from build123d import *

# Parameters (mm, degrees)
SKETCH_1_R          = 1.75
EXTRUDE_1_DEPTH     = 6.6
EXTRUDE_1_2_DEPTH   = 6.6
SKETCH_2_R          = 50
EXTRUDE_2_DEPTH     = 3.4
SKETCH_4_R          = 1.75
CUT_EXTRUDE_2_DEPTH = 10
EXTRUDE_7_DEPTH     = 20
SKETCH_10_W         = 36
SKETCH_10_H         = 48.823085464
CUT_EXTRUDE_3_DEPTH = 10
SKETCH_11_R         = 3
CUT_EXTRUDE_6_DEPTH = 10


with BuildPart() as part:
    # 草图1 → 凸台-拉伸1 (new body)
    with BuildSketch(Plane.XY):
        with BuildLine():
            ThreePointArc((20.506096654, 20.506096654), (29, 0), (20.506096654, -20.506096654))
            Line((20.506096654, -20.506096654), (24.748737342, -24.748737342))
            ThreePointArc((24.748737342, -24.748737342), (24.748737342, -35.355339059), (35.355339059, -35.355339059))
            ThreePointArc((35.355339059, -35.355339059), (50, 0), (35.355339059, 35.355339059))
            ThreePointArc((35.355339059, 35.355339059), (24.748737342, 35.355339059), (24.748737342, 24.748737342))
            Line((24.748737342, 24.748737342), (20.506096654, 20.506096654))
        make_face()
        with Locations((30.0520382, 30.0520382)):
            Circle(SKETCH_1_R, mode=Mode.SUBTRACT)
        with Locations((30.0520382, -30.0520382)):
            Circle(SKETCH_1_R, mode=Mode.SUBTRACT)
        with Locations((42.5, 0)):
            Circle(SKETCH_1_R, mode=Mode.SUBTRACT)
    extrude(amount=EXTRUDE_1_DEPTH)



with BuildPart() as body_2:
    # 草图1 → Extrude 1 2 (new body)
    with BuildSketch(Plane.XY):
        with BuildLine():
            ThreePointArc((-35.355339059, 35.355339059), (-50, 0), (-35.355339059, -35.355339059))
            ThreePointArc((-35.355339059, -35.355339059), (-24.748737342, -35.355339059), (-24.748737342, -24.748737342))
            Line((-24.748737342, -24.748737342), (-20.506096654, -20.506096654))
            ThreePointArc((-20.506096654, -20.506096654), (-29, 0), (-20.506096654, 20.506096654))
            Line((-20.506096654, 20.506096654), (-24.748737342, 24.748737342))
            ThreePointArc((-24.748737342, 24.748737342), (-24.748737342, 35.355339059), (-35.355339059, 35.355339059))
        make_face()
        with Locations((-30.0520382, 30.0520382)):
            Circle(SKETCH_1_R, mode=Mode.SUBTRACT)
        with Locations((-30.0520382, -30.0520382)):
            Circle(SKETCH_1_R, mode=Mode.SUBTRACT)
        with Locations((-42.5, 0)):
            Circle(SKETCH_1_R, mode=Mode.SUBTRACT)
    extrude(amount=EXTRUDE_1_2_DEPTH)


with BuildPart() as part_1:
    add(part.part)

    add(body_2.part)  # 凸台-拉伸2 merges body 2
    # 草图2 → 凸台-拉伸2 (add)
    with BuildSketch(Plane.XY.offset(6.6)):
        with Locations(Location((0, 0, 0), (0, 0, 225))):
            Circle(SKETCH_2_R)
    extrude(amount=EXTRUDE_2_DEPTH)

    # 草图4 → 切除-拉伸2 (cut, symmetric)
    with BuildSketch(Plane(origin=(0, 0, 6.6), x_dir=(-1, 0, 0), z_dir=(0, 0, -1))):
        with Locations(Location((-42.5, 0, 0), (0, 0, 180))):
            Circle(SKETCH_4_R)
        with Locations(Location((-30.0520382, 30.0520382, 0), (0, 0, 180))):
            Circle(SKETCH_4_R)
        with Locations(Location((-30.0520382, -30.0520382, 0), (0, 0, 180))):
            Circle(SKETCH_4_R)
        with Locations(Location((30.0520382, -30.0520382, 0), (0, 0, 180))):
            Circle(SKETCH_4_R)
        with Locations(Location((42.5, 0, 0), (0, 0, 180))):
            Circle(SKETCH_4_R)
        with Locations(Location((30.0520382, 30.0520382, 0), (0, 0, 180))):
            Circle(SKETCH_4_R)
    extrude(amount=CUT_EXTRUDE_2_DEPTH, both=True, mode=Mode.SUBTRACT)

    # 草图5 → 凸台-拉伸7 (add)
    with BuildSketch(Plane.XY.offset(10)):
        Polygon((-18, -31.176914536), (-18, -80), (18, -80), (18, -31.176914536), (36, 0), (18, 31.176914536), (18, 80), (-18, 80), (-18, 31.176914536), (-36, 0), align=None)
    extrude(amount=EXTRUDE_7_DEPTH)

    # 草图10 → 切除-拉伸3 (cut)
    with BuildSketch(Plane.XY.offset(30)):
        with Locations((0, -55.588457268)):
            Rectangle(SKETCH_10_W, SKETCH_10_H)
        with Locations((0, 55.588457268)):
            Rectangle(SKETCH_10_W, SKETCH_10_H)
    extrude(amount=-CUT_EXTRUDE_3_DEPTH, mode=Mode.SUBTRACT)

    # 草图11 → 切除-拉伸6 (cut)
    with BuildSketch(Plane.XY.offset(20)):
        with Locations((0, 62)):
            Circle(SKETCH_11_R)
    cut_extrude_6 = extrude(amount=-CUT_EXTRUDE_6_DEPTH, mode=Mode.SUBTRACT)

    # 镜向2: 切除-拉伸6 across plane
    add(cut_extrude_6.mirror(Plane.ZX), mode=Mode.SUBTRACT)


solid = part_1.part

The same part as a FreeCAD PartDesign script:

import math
import FreeCAD as App
import Part
import Sketcher

V = App.Vector
Q = App.Units.Quantity

doc = App.newDocument("Part")
body = doc.addObject("PartDesign::Body", "Body")

sketch1 = body.newObject("Sketcher::SketchObject", "Sketch")
sketch1.AttachmentSupport = (doc.getObject("XY_Plane"), [""])
sketch1.MapMode = "FlatFace"
sketch1.addGeometry(Part.ArcOfCircle(Part.Circle(V(0, 0, 0), V(0, 0, 1), 29), math.radians(-45), math.radians(45)), False)
sketch1.addGeometry(Part.LineSegment(V(20.5, -20.5, 0), V(24.7, -24.7, 0)), False)
sketch1.addGeometry(Part.ArcOfCircle(Part.Circle(V(30.1, -30.1, 0), V(0, 0, 1), 7.5), math.radians(135), math.radians(315)), False)
sketch1.addGeometry(Part.ArcOfCircle(Part.Circle(V(0, 0, 0), V(0, 0, 1), 50), math.radians(-45), math.radians(45)), False)
sketch1.addGeometry(Part.ArcOfCircle(Part.Circle(V(30.1, 30.1, 0), V(0, 0, 1), 7.5), math.radians(45), math.radians(225)), False)
sketch1.addGeometry(Part.LineSegment(V(24.7, 24.7, 0), V(20.5, 20.5, 0)), False)
sketch1.addGeometry(Part.Circle(V(30.1, -30.1, 0), V(0, 0, 1), 1.8), False)
sketch1.addGeometry(Part.Circle(V(42.5, 0, 0), V(0, 0, 1), 1.8), False)
sketch1.addGeometry(Part.Circle(V(30.1, 30.1, 0), V(0, 0, 1), 1.8), False)
sketch1.addConstraint(Sketcher.Constraint("Coincident", 0, 1, 1, 1))
sketch1.addConstraint(Sketcher.Constraint("Coincident", 1, 2, 2, 1))
sketch1.addConstraint(Sketcher.Constraint("Tangent", 2, 2, 3, 1))
sketch1.addConstraint(Sketcher.Constraint("Tangent", 3, 2, 4, 1))
sketch1.addConstraint(Sketcher.Constraint("Coincident", 4, 2, 5, 1))
sketch1.addConstraint(Sketcher.Constraint("Coincident", 5, 2, 0, 2))
sketch1.addConstraint(Sketcher.Constraint("Coincident", 0, 3, -1, 1))
sketch1.addConstraint(Sketcher.Constraint("Coincident", 3, 3, -1, 1))
sketch1.addConstraint(Sketcher.Constraint("Coincident", 6, 3, 2, 3))
sketch1.addConstraint(Sketcher.Constraint("Coincident", 8, 3, 4, 3))
sketch1.addConstraint(Sketcher.Constraint("Equal", 2, 4))
sketch1.addConstraint(Sketcher.Constraint("Equal", 6, 7))
sketch1.addConstraint(Sketcher.Constraint("Equal", 7, 8))
sketch1.addConstraint(Sketcher.Constraint("PointOnObject", 7, 3, -1))
sketch1.addConstraint(Sketcher.Constraint("Perpendicular", 1, 5))
sketch1.addConstraint(Sketcher.Constraint("Vertical", 2, 3, 4, 3))
sketch1.addConstraint(Sketcher.Constraint("Vertical", 1, 2, 4, 2))
sketch1.addConstraint(Sketcher.Constraint("Vertical", 0, 1, 5, 2))
sketch1.addConstraint(Sketcher.Constraint("Radius", 0, Q("29 mm")))
sketch1.addConstraint(Sketcher.Constraint("Radius", 3, Q("50 mm")))
sketch1.addConstraint(Sketcher.Constraint("Diameter", 6, Q("3.5 mm")))
sketch1.addConstraint(Sketcher.Constraint("Radius", 2, Q("7.5 mm")))
sketch1.addConstraint(Sketcher.Constraint("DistanceX", -1, 1, 7, 3, Q("42.5 mm")))
sketch1.addConstraint(Sketcher.Constraint("DistanceX", 1, 2, 6, 3, Q("5.303301 mm")))
sketch1.addConstraint(Sketcher.Constraint("DistanceX", 2, 3, 2, 2, Q("5.303301 mm")))
pad1 = body.newObject("PartDesign::Pad", "Pad")
pad1.Profile = sketch1
pad1.Length = 6.6
body2 = doc.addObject("PartDesign::Body", "Body001")

sketch2 = body2.newObject("Sketcher::SketchObject", "Sketch001")
sketch2.AttachmentSupport = (doc.getObject("XY_Plane001"), [""])
sketch2.MapMode = "FlatFace"
sketch2.addGeometry(Part.ArcOfCircle(Part.Circle(V(0, 0, 0), V(0, 0, 1), 50), math.radians(135), math.radians(225)), False)
sketch2.addGeometry(Part.ArcOfCircle(Part.Circle(V(-30.1, -30.1, 0), V(0, 0, 1), 7.5), math.radians(-135), math.radians(45)), False)
sketch2.addGeometry(Part.LineSegment(V(-24.7, -24.7, 0), V(-20.5, -20.5, 0)), False)
sketch2.addGeometry(Part.ArcOfCircle(Part.Circle(V(0, 0, 0), V(0, 0, 1), 29), math.radians(135), math.radians(225)), False)
sketch2.addGeometry(Part.LineSegment(V(-20.5, 20.5, 0), V(-24.7, 24.7, 0)), False)
sketch2.addGeometry(Part.ArcOfCircle(Part.Circle(V(-30.1, 30.1, 0), V(0, 0, 1), 7.5), math.radians(-45), math.radians(135)), False)
sketch2.addGeometry(Part.Circle(V(-42.5, 0, 0), V(0, 0, 1), 1.8), False)
sketch2.addGeometry(Part.Circle(V(-30.1, -30.1, 0), V(0, 0, 1), 1.8), False)
sketch2.addGeometry(Part.Circle(V(-30.1, 30.1, 0), V(0, 0, 1), 1.8), False)
sketch2.addConstraint(Sketcher.Constraint("Tangent", 0, 2, 1, 1))
sketch2.addConstraint(Sketcher.Constraint("Coincident", 1, 2, 2, 1))
sketch2.addConstraint(Sketcher.Constraint("Coincident", 2, 2, 3, 2))
sketch2.addConstraint(Sketcher.Constraint("Coincident", 3, 1, 4, 1))
sketch2.addConstraint(Sketcher.Constraint("Coincident", 4, 2, 5, 1))
sketch2.addConstraint(Sketcher.Constraint("Tangent", 5, 2, 0, 1))
sketch2.addConstraint(Sketcher.Constraint("Coincident", 0, 3, -1, 1))
sketch2.addConstraint(Sketcher.Constraint("Coincident", 3, 3, -1, 1))
sketch2.addConstraint(Sketcher.Constraint("Coincident", 7, 3, 1, 3))
sketch2.addConstraint(Sketcher.Constraint("Coincident", 8, 3, 5, 3))
sketch2.addConstraint(Sketcher.Constraint("Equal", 1, 5))
sketch2.addConstraint(Sketcher.Constraint("Equal", 6, 7))
sketch2.addConstraint(Sketcher.Constraint("Equal", 7, 8))
sketch2.addConstraint(Sketcher.Constraint("PointOnObject", 6, 3, -1))
sketch2.addConstraint(Sketcher.Constraint("Perpendicular", 2, 4))
sketch2.addConstraint(Sketcher.Constraint("Vertical", 1, 3, 5, 3))
sketch2.addConstraint(Sketcher.Constraint("Vertical", 2, 2, 3, 1))
sketch2.addConstraint(Sketcher.Constraint("Vertical", 1, 2, 4, 2))
sketch2.addConstraint(Sketcher.Constraint("Radius", 0, Q("50 mm")))
sketch2.addConstraint(Sketcher.Constraint("Radius", 3, Q("29 mm")))
sketch2.addConstraint(Sketcher.Constraint("Diameter", 6, Q("3.5 mm")))
sketch2.addConstraint(Sketcher.Constraint("Radius", 1, Q("7.5 mm")))
sketch2.addConstraint(Sketcher.Constraint("DistanceX", 6, 3, -1, 1, Q("42.5 mm")))
sketch2.addConstraint(Sketcher.Constraint("DistanceX", 7, 3, 1, 2, Q("5.303301 mm")))
sketch2.addConstraint(Sketcher.Constraint("DistanceX", 5, 2, 5, 3, Q("5.303301 mm")))
pad2 = body2.newObject("PartDesign::Pad", "Pad001")
pad2.Profile = sketch2
pad2.Length = 6.6
body.AllowCompound = True
doc.recompute()

boolean = body.newObject("PartDesign::Boolean", "Boolean")
boolean.Type = "Fuse"
boolean.addObjects([body2])

sketch3 = body.newObject("Sketcher::SketchObject", "Sketch002")
sketch3.AttachmentSupport = (doc.getObject("XY_Plane"), [""])
sketch3.MapMode = "FlatFace"
sketch3.AttachmentOffset = App.Placement(V(0, 0, 6.6), App.Rotation())
sketch3.addGeometry(Part.Circle(V(0, 0, 0), V(0, 0, 1), 50), False)
sketch3.addConstraint(Sketcher.Constraint("Coincident", 0, 3, -1, 1))
sketch3.addConstraint(Sketcher.Constraint("Diameter", 0, Q("100 mm")))
pad3 = body.newObject("PartDesign::Pad", "Pad002")
pad3.Profile = sketch3
pad3.Length = 3.4

sketch4 = body.newObject("Sketcher::SketchObject", "Sketch003")
sketch4.AttachmentSupport = (doc.getObject("XY_Plane"), [""])
sketch4.MapMode = "FlatFace"
sketch4.AttachmentOffset = App.Placement(V(0, 0, 6.6), App.Rotation())
sketch4.addGeometry(Part.Circle(V(42.5, 0, 0), V(0, 0, 1), 1.8), False)
sketch4.addGeometry(Part.Circle(V(30.1, 30.1, 0), V(0, 0, 1), 1.8), False)
sketch4.addGeometry(Part.Circle(V(30.1, -30.1, 0), V(0, 0, 1), 1.8), False)
sketch4.addGeometry(Part.Circle(V(-30.1, -30.1, 0), V(0, 0, 1), 1.8), False)
sketch4.addGeometry(Part.Circle(V(-42.5, 0, 0), V(0, 0, 1), 1.8), False)
sketch4.addGeometry(Part.Circle(V(-30.1, 30.1, 0), V(0, 0, 1), 1.8), False)
sketch4.addConstraint(Sketcher.Constraint("Equal", 0, 1))
sketch4.addConstraint(Sketcher.Constraint("Equal", 1, 2))
sketch4.addConstraint(Sketcher.Constraint("Equal", 2, 3))
sketch4.addConstraint(Sketcher.Constraint("Equal", 3, 4))
sketch4.addConstraint(Sketcher.Constraint("Equal", 4, 5))
sketch4.addConstraint(Sketcher.Constraint("Symmetric", 1, 3, 3, 3, -1, 1))
sketch4.addConstraint(Sketcher.Constraint("Symmetric", 0, 3, 4, 3, -1, 1))
sketch4.addConstraint(Sketcher.Constraint("Symmetric", 2, 3, 5, 3, -1, 1))
sketch4.addConstraint(Sketcher.Constraint("Symmetric", 2, 3, 3, 3, -2))
sketch4.addConstraint(Sketcher.Constraint("PointOnObject", 0, 3, -1))
sketch4.addConstraint(Sketcher.Constraint("Diameter", 0, Q("3.5 mm")))
sketch4.addConstraint(Sketcher.Constraint("DistanceX", 4, 3, 0, 3, Q("85 mm")))
sketch4.addConstraint(Sketcher.Constraint("DistanceX", -1, 1, 1, 3, Q("30.052038 mm")))
sketch4.addConstraint(Sketcher.Constraint("DistanceY", -1, 1, 1, 3, Q("30.052038 mm")))
pocket1 = body.newObject("PartDesign::Pocket", "Pocket")
pocket1.Profile = sketch4
pocket1.Length = 20
pocket1.Midplane = True

sketch5 = body.newObject("Sketcher::SketchObject", "Sketch004")
sketch5.AttachmentSupport = (doc.getObject("XY_Plane"), [""])
sketch5.MapMode = "FlatFace"
sketch5.AttachmentOffset = App.Placement(V(0, 0, 10), App.Rotation())
sketch5.addGeometry(Part.LineSegment(V(-18, -31, 0), V(-18, -80, 0)), False)
sketch5.addGeometry(Part.LineSegment(V(-18, -80, 0), V(18, -80, 0)), False)
sketch5.addGeometry(Part.LineSegment(V(18, -80, 0), V(18, -31, 0)), False)
sketch5.addGeometry(Part.LineSegment(V(18, -31, 0), V(36, 0, 0)), False)
sketch5.addGeometry(Part.LineSegment(V(36, 0, 0), V(18, 31, 0)), False)
sketch5.addGeometry(Part.LineSegment(V(18, 31, 0), V(18, 80, 0)), False)
sketch5.addGeometry(Part.LineSegment(V(18, 80, 0), V(-18, 80, 0)), False)
sketch5.addGeometry(Part.LineSegment(V(-18, 80, 0), V(-18, 31, 0)), False)
sketch5.addGeometry(Part.LineSegment(V(-18, 31, 0), V(-36, 0, 0)), False)
sketch5.addGeometry(Part.LineSegment(V(-36, 0, 0), V(-18, -31, 0)), False)
sketch5.addConstraint(Sketcher.Constraint("Coincident", 0, 2, 1, 1))
sketch5.addConstraint(Sketcher.Constraint("Coincident", 1, 2, 2, 1))
sketch5.addConstraint(Sketcher.Constraint("Coincident", 2, 2, 3, 1))
sketch5.addConstraint(Sketcher.Constraint("Coincident", 3, 2, 4, 1))
sketch5.addConstraint(Sketcher.Constraint("Coincident", 4, 2, 5, 1))
sketch5.addConstraint(Sketcher.Constraint("Coincident", 5, 2, 6, 1))
sketch5.addConstraint(Sketcher.Constraint("Coincident", 6, 2, 7, 1))
sketch5.addConstraint(Sketcher.Constraint("Coincident", 7, 2, 8, 1))
sketch5.addConstraint(Sketcher.Constraint("Coincident", 8, 2, 9, 1))
sketch5.addConstraint(Sketcher.Constraint("Coincident", 9, 2, 0, 1))
sketch5.addConstraint(Sketcher.Constraint("Vertical", 0))
sketch5.addConstraint(Sketcher.Constraint("Horizontal", 1))
sketch5.addConstraint(Sketcher.Constraint("Vertical", 2))
sketch5.addConstraint(Sketcher.Constraint("Vertical", 5))
sketch5.addConstraint(Sketcher.Constraint("Horizontal", 6))
sketch5.addConstraint(Sketcher.Constraint("Vertical", 7))
sketch5.addConstraint(Sketcher.Constraint("Symmetric", 0, 2, 5, 2, -1, 1))
sketch5.addConstraint(Sketcher.Constraint("Symmetric", 2, 2, 7, 2, -1, 1))
sketch5.addConstraint(Sketcher.Constraint("Symmetric", 3, 2, 8, 2, -1, 1))
sketch5.addConstraint(Sketcher.Constraint("Symmetric", 4, 2, 7, 2, -2))
sketch5.addConstraint(Sketcher.Constraint("PointOnObject", 3, 2, -1))
sketch5.addConstraint(Sketcher.Constraint("Parallel", 4, 9))
sketch5.addConstraint(Sketcher.Constraint("DistanceX", 1, 1, 1, 2, Q("36 mm")))
sketch5.addConstraint(Sketcher.Constraint("Angle", 3, Q("60 deg")))
sketch5.addConstraint(Sketcher.Constraint("Distance", 3, Q("36 mm")))
sketch5.addConstraint(Sketcher.Constraint("DistanceY", 0, 2, -1, 1, Q("80 mm")))
pad4 = body.newObject("PartDesign::Pad", "Pad003")
pad4.Profile = sketch5
pad4.Length = 20

sketch6 = body.newObject("Sketcher::SketchObject", "Sketch005")
sketch6.AttachmentSupport = (doc.getObject("XY_Plane"), [""])
sketch6.MapMode = "FlatFace"
sketch6.AttachmentOffset = App.Placement(V(0, 0, 30), App.Rotation())
sketch6.addGeometry(Part.LineSegment(V(-18, -31, 0), V(-18, -80, 0)), False)
sketch6.addGeometry(Part.LineSegment(V(-18, -80, 0), V(18, -80, 0)), False)
sketch6.addGeometry(Part.LineSegment(V(18, -80, 0), V(18, -31, 0)), False)
sketch6.addGeometry(Part.LineSegment(V(18, -31, 0), V(-18, -31, 0)), False)
sketch6.addGeometry(Part.LineSegment(V(-18, 80, 0), V(-18, 31, 0)), False)
sketch6.addGeometry(Part.LineSegment(V(-18, 31, 0), V(18, 31, 0)), False)
sketch6.addGeometry(Part.LineSegment(V(18, 31, 0), V(18, 80, 0)), False)
sketch6.addGeometry(Part.LineSegment(V(18, 80, 0), V(-18, 80, 0)), False)
sketch6.addConstraint(Sketcher.Constraint("Coincident", 0, 2, 1, 1))
sketch6.addConstraint(Sketcher.Constraint("Coincident", 1, 2, 2, 1))
sketch6.addConstraint(Sketcher.Constraint("Coincident", 2, 2, 3, 1))
sketch6.addConstraint(Sketcher.Constraint("Coincident", 3, 2, 0, 1))
sketch6.addConstraint(Sketcher.Constraint("Coincident", 4, 2, 5, 1))
sketch6.addConstraint(Sketcher.Constraint("Coincident", 5, 2, 6, 1))
sketch6.addConstraint(Sketcher.Constraint("Coincident", 6, 2, 7, 1))
sketch6.addConstraint(Sketcher.Constraint("Coincident", 7, 2, 4, 1))
sketch6.addConstraint(Sketcher.Constraint("Vertical", 0))
sketch6.addConstraint(Sketcher.Constraint("Horizontal", 1))
sketch6.addConstraint(Sketcher.Constraint("Vertical", 2))
sketch6.addConstraint(Sketcher.Constraint("Horizontal", 3))
sketch6.addConstraint(Sketcher.Constraint("Vertical", 4))
sketch6.addConstraint(Sketcher.Constraint("Horizontal", 5))
sketch6.addConstraint(Sketcher.Constraint("Vertical", 6))
sketch6.addConstraint(Sketcher.Constraint("Horizontal", 7))
sketch6.addConstraint(Sketcher.Constraint("Symmetric", 2, 2, 4, 2, -1, 1))
sketch6.addConstraint(Sketcher.Constraint("Symmetric", 0, 2, 6, 2, -1, 1))
sketch6.addConstraint(Sketcher.Constraint("Vertical", 3, 2, 4, 2))
sketch6.addConstraint(Sketcher.Constraint("DistanceX", 1, 1, 1, 2, Q("36 mm")))
sketch6.addConstraint(Sketcher.Constraint("DistanceY", 0, 2, -1, 1, Q("80 mm")))
sketch6.addConstraint(Sketcher.Constraint("DistanceY", 0, 2, 0, 1, Q("48.823085 mm")))
pocket2 = body.newObject("PartDesign::Pocket", "Pocket001")
pocket2.Profile = sketch6
pocket2.Length = 10

sketch7 = body.newObject("Sketcher::SketchObject", "Sketch006")
sketch7.AttachmentSupport = (doc.getObject("XY_Plane"), [""])
sketch7.MapMode = "FlatFace"
sketch7.AttachmentOffset = App.Placement(V(0, 0, 20), App.Rotation())
sketch7.addGeometry(Part.Circle(V(0, 62, 0), V(0, 0, 1), 3), False)
sketch7.addConstraint(Sketcher.Constraint("PointOnObject", 0, 3, -2))
sketch7.addConstraint(Sketcher.Constraint("Diameter", 0, Q("6 mm")))
sketch7.addConstraint(Sketcher.Constraint("DistanceY", -1, 1, 0, 3, Q("62 mm")))
pocket3 = body.newObject("PartDesign::Pocket", "Pocket002")
pocket3.Profile = sketch7
pocket3.Length = 10
doc.recompute()

mirrored = body.newObject("PartDesign::Mirrored", "Mirrored")
mirrored.Originals = [pocket3]
mirrored.MirrorPlane = (doc.getObject("XZ_Plane"), [""])
body.Tip = mirrored

doc.recompute()
